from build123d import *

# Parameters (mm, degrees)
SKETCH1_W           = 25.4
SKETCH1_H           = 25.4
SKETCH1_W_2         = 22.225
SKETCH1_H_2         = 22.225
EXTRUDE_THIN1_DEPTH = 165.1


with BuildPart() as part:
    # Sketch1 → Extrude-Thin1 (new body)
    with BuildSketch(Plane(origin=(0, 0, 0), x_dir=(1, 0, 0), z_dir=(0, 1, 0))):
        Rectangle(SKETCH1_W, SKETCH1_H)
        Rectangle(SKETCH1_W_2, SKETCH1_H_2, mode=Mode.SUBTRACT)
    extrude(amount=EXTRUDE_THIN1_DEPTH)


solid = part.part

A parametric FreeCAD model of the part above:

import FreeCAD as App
import Part
import Sketcher
Q = App.Units.Quantity


def add_polygon(sketch, points):
    """Adds a closed chain of lines whose ends are joined by coincident constraints."""
    first, n = sketch.GeometryCount, len(points)
    for a, b in zip(points, points[1:] + points[:1]):
        sketch.addGeometry(Part.LineSegment(App.Vector(*a, 0), App.Vector(*b, 0)), False)
    for i in range(n):
        sketch.addConstraint(Sketcher.Constraint("Coincident", first + i, 2, first + (i + 1) % n, 1))

doc = App.newDocument("Part")
body = doc.addObject("PartDesign::Body", "Body")

sketch1 = body.newObject("Sketcher::SketchObject", "Sketch")
sketch1.AttachmentSupport = (doc.getObject("XZ_Plane"), [""])
sketch1.MapMode = "FlatFace"
add_polygon(sketch1, [(-12.7, -12.7), (-12.7, 12.7), (12.7, 12.7), (12.7, -12.7)])
add_polygon(sketch1, [(11.1125, 11.1125), (-11.1125, 11.1125), (-11.1125, -11.1125), (11.1125, -11.1125)])
sketch1.addConstraint(Sketcher.Constraint("Vertical", 0))
sketch1.addConstraint(Sketcher.Constraint("Horizontal", 1))
sketch1.addConstraint(Sketcher.Constraint("Vertical", 2))
sketch1.addConstraint(Sketcher.Constraint("Horizontal", 3))
sketch1.addConstraint(Sketcher.Constraint("Horizontal", 4))
sketch1.addConstraint(Sketcher.Constraint("Vertical", 5))
sketch1.addConstraint(Sketcher.Constraint("Horizontal", 6))
sketch1.addConstraint(Sketcher.Constraint("Vertical", 7))
sketch1.addConstraint(Sketcher.Constraint("Symmetric", 0, 2, 2, 2, -1, 1))
sketch1.addConstraint(Sketcher.Constraint("Symmetric", 4, 2, 6, 2, -1, 1))
sketch1.addConstraint(Sketcher.Constraint("Equal", 3, 0))
sketch1.addConstraint(Sketcher.Constraint("Equal", 6, 5))
sketch1.addConstraint(Sketcher.Constraint("DistanceX", 1, 1, 1, 2, Q("1 in")))
sketch1.addConstraint(Sketcher.Constraint("DistanceX", 4, 2, 4, 1, Q("0.875 in")))
pad1 = body.newObject("PartDesign::Pad", "Pad")
pad1.Profile = sketch1
pad1.Length = Q("6.5 in")
pad1.Reversed = True

doc.recompute()
